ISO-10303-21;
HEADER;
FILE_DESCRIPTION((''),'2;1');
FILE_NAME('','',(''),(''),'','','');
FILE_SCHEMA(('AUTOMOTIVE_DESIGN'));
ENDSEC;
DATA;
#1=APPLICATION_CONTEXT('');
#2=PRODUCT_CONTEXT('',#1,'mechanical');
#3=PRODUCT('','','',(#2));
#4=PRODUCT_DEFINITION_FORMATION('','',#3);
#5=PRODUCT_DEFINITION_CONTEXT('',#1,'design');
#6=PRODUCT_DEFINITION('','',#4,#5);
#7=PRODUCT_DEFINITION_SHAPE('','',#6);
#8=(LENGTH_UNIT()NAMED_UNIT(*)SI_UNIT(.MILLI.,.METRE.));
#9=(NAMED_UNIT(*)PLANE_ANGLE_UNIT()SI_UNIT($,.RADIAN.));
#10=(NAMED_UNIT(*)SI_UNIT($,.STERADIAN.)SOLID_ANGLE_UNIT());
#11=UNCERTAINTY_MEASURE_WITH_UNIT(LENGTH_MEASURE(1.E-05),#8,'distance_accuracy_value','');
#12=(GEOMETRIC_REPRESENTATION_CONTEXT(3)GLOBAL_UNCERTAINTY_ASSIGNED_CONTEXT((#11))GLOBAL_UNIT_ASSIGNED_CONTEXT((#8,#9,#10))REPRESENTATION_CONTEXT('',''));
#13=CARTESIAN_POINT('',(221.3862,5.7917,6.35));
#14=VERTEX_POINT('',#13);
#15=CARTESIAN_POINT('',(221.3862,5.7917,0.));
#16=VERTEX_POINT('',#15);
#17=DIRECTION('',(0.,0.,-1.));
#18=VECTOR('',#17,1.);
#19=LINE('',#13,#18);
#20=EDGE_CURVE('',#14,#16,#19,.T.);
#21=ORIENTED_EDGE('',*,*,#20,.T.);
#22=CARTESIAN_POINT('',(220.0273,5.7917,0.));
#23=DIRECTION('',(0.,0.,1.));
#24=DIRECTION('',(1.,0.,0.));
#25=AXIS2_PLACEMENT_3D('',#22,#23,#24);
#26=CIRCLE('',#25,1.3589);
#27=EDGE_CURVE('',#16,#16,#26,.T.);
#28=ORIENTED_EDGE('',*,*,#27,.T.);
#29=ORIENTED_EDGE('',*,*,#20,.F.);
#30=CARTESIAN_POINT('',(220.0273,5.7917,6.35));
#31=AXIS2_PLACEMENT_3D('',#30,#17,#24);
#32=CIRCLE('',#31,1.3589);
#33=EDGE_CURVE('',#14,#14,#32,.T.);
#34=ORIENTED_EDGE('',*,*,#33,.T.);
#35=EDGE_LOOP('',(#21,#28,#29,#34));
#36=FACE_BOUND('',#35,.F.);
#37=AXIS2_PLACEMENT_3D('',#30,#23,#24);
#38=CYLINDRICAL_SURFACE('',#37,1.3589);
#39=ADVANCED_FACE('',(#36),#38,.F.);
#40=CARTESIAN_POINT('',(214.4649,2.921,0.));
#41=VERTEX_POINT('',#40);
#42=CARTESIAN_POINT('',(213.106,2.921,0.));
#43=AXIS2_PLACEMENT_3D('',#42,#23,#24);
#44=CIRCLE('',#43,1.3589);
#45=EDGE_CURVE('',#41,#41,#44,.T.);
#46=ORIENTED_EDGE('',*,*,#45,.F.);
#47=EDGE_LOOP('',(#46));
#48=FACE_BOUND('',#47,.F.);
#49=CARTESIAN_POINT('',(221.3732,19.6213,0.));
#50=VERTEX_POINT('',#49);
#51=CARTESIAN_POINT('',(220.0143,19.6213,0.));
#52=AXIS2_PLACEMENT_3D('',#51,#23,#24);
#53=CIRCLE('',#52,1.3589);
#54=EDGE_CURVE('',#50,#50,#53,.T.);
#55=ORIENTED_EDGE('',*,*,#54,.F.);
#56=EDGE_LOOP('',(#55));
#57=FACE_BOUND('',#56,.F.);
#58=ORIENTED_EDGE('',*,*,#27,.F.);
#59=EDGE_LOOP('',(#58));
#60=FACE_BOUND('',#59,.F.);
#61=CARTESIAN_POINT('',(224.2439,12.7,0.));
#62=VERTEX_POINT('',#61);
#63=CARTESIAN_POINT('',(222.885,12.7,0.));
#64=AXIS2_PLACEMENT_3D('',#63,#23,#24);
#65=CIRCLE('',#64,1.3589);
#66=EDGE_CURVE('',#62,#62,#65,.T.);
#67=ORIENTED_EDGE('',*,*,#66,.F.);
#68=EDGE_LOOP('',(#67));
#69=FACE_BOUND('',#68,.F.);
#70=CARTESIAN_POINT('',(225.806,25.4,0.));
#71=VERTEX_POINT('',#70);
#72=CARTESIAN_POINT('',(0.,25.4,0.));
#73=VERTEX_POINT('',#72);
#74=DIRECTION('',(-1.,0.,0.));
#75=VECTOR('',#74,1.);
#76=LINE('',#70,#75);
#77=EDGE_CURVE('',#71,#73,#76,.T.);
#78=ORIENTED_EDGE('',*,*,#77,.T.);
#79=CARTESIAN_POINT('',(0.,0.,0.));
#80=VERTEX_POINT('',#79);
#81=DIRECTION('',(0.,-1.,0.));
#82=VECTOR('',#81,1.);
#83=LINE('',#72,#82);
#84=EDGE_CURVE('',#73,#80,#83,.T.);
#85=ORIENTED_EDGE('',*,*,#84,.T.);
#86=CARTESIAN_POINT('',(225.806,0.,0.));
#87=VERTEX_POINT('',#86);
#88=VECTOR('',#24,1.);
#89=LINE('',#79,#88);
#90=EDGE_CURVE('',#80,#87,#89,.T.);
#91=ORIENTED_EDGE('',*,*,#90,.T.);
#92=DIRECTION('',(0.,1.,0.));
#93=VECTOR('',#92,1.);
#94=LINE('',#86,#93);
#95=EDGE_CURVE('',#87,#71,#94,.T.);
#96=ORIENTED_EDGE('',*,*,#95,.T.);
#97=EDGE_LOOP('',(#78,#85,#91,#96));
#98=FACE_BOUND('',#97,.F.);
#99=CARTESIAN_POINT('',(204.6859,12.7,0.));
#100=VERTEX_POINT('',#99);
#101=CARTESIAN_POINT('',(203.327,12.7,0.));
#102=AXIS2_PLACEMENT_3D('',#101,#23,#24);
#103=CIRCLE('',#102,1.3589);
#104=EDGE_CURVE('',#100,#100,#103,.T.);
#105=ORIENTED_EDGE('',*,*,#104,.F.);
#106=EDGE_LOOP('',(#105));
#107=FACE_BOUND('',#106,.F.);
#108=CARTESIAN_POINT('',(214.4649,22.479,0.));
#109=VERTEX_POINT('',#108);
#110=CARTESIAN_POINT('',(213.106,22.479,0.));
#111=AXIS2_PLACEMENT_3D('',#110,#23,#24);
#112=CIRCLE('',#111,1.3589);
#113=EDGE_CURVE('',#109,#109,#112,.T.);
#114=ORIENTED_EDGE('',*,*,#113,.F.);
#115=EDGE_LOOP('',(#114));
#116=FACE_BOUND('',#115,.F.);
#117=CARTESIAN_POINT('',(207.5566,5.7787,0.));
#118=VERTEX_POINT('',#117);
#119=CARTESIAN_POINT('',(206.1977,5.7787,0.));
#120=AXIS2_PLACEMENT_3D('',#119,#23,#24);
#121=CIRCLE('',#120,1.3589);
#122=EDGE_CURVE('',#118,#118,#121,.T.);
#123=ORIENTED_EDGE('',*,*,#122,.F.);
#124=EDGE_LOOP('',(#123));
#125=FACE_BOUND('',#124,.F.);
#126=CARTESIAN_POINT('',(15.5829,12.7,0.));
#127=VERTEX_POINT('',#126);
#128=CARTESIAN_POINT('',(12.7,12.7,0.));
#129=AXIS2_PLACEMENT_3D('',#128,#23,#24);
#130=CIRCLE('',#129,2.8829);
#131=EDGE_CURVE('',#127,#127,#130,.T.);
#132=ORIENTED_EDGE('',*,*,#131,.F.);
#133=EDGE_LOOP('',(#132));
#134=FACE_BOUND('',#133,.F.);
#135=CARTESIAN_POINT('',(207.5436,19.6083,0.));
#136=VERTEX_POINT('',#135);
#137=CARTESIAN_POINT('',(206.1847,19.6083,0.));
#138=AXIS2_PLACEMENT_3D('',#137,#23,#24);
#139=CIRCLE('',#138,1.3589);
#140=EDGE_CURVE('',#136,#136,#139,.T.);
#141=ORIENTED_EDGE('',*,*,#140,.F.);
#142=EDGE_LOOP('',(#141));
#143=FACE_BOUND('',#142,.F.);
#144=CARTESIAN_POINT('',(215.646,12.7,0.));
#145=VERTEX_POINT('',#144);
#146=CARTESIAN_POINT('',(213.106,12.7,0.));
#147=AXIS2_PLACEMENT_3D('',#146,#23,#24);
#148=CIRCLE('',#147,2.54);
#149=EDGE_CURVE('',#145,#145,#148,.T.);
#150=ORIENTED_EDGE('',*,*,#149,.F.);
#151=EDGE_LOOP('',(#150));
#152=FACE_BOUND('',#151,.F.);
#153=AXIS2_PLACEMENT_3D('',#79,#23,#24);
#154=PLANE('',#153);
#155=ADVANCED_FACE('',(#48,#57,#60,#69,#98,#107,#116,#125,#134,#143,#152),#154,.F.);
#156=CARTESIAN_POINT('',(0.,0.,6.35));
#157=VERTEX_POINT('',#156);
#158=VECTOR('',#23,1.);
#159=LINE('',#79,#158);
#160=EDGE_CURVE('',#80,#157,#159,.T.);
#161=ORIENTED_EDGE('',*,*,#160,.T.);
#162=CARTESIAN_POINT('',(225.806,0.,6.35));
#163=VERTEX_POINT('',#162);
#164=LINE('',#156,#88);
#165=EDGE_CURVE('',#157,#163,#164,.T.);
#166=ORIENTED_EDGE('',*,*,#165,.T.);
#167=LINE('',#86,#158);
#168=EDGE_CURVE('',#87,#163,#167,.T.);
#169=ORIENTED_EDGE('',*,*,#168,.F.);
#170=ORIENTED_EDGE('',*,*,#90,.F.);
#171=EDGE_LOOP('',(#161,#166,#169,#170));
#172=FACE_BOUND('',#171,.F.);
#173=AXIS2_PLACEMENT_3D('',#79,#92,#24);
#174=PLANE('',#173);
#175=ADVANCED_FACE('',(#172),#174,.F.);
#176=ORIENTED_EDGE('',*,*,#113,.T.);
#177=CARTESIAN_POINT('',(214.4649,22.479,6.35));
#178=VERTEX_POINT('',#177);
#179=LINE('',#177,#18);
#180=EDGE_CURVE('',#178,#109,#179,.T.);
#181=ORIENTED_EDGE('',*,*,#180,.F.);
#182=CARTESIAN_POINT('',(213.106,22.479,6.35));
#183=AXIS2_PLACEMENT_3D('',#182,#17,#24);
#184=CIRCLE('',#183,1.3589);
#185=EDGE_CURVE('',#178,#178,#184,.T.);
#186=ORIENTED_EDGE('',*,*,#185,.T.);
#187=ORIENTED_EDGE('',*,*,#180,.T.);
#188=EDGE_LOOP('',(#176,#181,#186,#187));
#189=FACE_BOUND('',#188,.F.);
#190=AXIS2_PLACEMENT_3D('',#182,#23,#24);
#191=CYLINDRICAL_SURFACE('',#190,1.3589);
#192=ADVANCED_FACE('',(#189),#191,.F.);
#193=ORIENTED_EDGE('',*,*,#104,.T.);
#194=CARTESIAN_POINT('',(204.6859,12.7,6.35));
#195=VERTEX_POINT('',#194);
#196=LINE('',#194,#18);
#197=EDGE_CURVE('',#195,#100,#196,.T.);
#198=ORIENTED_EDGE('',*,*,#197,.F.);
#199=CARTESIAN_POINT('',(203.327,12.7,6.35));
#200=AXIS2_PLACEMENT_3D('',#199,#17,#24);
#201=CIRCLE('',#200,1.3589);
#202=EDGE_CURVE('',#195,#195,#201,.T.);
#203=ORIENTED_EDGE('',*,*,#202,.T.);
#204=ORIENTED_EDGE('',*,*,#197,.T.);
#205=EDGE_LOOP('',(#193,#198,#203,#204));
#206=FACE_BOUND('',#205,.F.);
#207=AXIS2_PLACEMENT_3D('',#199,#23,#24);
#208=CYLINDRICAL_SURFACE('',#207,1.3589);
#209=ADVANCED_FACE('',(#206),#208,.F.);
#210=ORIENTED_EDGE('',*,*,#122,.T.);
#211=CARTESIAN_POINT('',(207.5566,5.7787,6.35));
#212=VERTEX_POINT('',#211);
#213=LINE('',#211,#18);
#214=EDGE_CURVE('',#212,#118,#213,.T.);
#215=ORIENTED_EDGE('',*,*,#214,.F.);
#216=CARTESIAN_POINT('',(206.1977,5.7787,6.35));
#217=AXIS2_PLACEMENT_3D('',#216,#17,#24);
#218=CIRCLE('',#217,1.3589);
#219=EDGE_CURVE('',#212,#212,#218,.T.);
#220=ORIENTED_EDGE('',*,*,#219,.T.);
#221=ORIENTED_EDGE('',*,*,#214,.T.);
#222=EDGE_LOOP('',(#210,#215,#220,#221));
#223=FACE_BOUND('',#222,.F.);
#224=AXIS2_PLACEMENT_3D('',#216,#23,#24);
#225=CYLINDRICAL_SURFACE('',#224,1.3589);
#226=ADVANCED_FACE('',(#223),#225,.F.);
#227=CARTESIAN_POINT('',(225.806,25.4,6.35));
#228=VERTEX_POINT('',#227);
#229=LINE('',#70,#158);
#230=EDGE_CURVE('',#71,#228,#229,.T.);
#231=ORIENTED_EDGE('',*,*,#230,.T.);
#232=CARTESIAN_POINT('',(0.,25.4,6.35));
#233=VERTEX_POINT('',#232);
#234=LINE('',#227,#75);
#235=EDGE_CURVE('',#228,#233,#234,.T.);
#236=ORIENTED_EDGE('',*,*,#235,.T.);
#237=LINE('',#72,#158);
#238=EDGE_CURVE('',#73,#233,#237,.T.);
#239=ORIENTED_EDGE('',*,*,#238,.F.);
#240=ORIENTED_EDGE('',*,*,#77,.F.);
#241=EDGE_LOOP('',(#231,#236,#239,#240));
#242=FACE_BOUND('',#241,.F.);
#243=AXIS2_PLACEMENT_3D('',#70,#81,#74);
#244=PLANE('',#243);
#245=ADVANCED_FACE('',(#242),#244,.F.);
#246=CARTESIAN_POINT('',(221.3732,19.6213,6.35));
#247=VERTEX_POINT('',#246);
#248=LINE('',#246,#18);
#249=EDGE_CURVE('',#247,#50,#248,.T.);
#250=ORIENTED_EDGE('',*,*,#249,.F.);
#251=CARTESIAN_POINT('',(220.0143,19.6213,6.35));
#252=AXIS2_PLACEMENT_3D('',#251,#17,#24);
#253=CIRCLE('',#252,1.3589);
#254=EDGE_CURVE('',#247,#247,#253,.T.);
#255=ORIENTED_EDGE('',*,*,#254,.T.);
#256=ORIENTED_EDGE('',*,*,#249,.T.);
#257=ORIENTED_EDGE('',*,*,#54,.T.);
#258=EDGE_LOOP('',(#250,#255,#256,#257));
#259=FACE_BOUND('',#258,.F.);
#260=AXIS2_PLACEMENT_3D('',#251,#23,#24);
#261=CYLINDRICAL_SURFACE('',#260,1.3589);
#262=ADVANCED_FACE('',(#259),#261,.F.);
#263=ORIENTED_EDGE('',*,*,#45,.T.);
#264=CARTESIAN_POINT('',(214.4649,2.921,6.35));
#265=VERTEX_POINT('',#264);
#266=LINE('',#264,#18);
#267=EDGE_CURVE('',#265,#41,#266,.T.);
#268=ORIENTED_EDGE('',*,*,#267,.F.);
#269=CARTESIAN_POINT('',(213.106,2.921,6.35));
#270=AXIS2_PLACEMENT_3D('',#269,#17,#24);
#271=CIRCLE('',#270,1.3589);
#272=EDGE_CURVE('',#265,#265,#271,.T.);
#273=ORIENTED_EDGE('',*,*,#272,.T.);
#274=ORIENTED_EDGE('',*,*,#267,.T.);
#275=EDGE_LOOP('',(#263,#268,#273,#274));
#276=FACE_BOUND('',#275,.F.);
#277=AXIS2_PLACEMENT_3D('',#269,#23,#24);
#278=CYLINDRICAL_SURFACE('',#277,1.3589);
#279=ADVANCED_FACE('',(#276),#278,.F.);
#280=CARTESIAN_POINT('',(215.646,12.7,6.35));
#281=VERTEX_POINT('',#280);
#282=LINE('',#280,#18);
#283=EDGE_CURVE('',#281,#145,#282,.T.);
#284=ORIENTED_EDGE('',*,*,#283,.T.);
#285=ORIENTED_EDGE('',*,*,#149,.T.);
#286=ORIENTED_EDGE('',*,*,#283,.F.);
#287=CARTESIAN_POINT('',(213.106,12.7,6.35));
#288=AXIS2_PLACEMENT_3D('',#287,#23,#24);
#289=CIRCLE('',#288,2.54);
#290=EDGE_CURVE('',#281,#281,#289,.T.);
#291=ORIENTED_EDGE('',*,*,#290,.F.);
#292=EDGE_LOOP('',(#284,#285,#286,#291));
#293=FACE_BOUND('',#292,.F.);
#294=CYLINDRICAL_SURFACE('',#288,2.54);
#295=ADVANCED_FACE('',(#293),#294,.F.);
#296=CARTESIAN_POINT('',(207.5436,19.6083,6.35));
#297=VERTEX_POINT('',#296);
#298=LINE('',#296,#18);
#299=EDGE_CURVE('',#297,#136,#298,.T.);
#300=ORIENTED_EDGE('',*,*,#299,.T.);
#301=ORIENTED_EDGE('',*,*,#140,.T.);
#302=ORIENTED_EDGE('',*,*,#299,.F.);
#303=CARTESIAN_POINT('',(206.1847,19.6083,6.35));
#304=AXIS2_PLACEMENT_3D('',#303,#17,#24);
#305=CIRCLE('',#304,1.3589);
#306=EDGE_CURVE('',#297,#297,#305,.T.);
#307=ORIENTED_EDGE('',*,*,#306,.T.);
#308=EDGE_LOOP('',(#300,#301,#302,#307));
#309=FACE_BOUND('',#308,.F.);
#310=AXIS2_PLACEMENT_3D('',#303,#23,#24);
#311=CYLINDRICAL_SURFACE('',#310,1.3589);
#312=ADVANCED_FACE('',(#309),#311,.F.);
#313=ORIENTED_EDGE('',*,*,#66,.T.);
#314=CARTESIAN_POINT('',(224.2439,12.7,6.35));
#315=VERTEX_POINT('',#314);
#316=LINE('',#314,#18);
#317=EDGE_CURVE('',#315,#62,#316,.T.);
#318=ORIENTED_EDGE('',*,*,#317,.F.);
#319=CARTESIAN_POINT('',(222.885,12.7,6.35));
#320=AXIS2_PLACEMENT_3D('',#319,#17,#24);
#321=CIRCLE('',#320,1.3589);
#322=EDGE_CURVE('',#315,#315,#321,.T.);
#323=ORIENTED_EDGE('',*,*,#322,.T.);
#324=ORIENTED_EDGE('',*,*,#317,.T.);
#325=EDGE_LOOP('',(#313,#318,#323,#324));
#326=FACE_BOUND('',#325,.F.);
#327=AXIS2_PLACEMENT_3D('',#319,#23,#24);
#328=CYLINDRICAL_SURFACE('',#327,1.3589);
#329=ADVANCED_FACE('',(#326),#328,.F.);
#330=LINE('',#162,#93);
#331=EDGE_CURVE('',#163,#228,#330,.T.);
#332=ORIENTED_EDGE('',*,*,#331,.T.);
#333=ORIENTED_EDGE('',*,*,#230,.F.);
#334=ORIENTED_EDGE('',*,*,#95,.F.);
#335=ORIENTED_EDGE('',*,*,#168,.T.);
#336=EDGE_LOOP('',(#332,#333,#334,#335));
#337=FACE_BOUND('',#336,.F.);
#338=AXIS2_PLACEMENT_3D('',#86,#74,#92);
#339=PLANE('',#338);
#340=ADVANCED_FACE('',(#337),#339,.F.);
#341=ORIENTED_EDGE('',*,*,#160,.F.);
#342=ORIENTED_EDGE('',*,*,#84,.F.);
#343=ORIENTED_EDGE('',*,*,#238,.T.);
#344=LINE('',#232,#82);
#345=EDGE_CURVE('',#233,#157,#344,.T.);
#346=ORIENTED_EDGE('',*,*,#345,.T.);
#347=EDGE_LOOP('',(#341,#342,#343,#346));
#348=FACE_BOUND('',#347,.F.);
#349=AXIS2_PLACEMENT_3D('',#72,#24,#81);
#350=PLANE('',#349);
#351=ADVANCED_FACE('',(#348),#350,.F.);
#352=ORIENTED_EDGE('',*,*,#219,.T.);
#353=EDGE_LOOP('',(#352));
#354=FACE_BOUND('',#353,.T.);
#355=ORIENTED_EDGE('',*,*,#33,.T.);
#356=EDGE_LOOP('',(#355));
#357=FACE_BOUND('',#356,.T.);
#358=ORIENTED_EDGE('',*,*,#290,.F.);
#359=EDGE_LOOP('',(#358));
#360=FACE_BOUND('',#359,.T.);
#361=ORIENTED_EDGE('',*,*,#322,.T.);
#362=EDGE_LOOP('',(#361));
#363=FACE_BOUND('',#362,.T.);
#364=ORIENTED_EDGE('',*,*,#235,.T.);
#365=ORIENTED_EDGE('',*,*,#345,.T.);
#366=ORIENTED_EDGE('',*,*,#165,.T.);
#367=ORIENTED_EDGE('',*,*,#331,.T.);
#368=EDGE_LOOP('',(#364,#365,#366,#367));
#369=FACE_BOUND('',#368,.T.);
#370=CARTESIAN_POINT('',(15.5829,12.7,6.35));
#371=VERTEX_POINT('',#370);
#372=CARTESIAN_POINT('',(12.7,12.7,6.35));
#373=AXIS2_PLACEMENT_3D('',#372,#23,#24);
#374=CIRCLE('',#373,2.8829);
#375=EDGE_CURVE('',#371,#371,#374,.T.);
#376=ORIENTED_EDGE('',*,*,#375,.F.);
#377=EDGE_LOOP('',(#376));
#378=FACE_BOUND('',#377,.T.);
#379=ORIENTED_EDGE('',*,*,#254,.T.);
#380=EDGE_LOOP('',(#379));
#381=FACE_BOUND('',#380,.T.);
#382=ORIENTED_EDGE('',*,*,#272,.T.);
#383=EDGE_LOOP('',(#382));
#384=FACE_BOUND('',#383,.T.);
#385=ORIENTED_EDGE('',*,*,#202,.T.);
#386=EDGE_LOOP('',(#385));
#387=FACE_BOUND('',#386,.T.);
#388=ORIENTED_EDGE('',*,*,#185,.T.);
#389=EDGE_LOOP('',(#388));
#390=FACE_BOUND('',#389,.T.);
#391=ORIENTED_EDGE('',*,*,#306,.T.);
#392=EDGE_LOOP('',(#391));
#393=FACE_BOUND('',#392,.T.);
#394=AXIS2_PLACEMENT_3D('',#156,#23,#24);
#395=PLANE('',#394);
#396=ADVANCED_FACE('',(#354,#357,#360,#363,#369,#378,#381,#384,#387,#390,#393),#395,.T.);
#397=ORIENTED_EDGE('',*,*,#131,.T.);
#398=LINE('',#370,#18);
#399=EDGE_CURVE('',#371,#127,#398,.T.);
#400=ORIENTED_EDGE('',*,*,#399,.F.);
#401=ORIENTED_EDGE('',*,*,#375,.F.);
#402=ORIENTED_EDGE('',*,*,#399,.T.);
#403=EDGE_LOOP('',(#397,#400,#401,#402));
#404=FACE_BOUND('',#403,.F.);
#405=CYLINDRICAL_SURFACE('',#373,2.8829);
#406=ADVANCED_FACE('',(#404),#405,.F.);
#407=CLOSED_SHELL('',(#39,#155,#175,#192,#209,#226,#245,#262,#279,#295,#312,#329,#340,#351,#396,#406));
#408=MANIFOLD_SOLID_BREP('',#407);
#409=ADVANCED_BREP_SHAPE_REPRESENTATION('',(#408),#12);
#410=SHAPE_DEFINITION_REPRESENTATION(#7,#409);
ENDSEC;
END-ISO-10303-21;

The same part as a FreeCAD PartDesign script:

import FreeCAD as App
import Part
import Sketcher

V = App.Vector
Q = App.Units.Quantity

doc = App.newDocument("Part")
body = doc.addObject("PartDesign::Body", "Body")

# Sketch on XY plane
sketch1 = doc.addObject("Sketcher::SketchObject", "Sketch")
body.addObject(sketch1)
sketch1.AttachmentSupport = (doc.XY_Plane, [""])
sketch1.MapMode = "FlatFace"
sketch1.addGeometry([
    Part.LineSegment(V(0, 25.4, 0), V(0, 0, 0)),
    Part.LineSegment(V(0, 0, 0), V(225.806, 0, 0)),
    Part.LineSegment(V(225.806, 0, 0), V(225.806, 25.4, 0)),
    Part.LineSegment(V(225.806, 25.4, 0), V(0, 25.4, 0)),
], False)
sketch1.addConstraint([
    Sketcher.Constraint("Coincident", 0, 2, 1, 1),
    Sketcher.Constraint("Coincident", 1, 2, 2, 1),
    Sketcher.Constraint("Coincident", 2, 2, 3, 1),
    Sketcher.Constraint("Coincident", 3, 2, 0, 1),
    Sketcher.Constraint("Vertical", 0),
    Sketcher.Constraint("Horizontal", 1),
    Sketcher.Constraint("Vertical", 2),
    Sketcher.Constraint("Horizontal", 3),
    Sketcher.Constraint("Coincident", 0, 2, -1, 1),
    Sketcher.Constraint("DistanceY", 0, 2, 0, 1, Q("1 in")),
    Sketcher.Constraint("DistanceX", 1, 1, 1, 2, Q("8.89 in")),
])
pad1 = doc.addObject("PartDesign::Pad", "Pad")
body.addObject(pad1)
pad1.Profile = sketch1
pad1.Length = Q("0.25 in")

# Sketch on XY plane
sketch2 = doc.addObject("Sketcher::SketchObject", "Sketch001")
body.addObject(sketch2)
sketch2.AttachmentSupport = (doc.XY_Plane, [""])
sketch2.MapMode = "FlatFace"
sketch2.AttachmentOffset = App.Placement(V(0, 0, 0.25 * 25.4), App.Rotation())
sketch2.addGeometry(Part.Circle(V(12.7, 12.7, 0), V(0, 0, 1), 2.8829), False)
sketch2.addConstraint([
    Sketcher.Constraint("Diameter", 0, Q("0.227 in")),
    Sketcher.Constraint("DistanceX", -1, 1, 0, 3, Q("0.5 in")),
    Sketcher.Constraint("DistanceY", -1, 1, 0, 3, Q("0.5 in")),
])
pocket1 = doc.addObject("PartDesign::Pocket", "Pocket")
body.addObject(pocket1)
pocket1.Profile = sketch2
pocket1.Type = "ThroughAll"

# Sketch on XY plane
sketch3 = doc.addObject("Sketcher::SketchObject", "Sketch002")
body.addObject(sketch3)
sketch3.AttachmentSupport = (doc.XY_Plane, [""])
sketch3.MapMode = "FlatFace"
sketch3.AttachmentOffset = App.Placement(V(0, 0, 0.25 * 25.4), App.Rotation())
sketch3.addGeometry(Part.Circle(V(213.106, 12.7, 0), V(0, 0, 1), 2.54), False)
sketch3.addConstraint([
    Sketcher.Constraint("Diameter", 0, Q("0.2 in")),
    Sketcher.Constraint("DistanceY", -1, 1, 0, 3, Q("0.5 in")),
    Sketcher.Constraint("DistanceX", -1, 1, 0, 3, Q("8.39 in")),
])
pocket2 = doc.addObject("PartDesign::Pocket", "Pocket001")
body.addObject(pocket2)
pocket2.Profile = sketch3
pocket2.Type = "ThroughAll"

# Sketch on XY plane
sketch4 = doc.addObject("Sketcher::SketchObject", "Sketch003")
body.addObject(sketch4)
sketch4.AttachmentSupport = (doc.XY_Plane, [""])
sketch4.MapMode = "FlatFace"
sketch4.AttachmentOffset = App.Placement(V(0, 0, 0.25 * 25.4), App.Rotation())
sketch4.addGeometry([
    Part.Circle(V(222.885, 12.7, 0), V(0, 0, 1), 1.3589),  # 0
    Part.Circle(V(220.0143, 19.6213, 0), V(0, 0, 1), 1.3589),  # 1
    Part.Circle(V(220.0273, 5.7917, 0), V(0, 0, 1), 1.3589),  # 2
    Part.Circle(V(213.106, 2.921, 0), V(0, 0, 1), 1.3589),  # 3
    Part.Circle(V(213.106, 22.479, 0), V(0, 0, 1), 1.3589),  # 4
    Part.Circle(V(206.1977, 5.7787, 0), V(0, 0, 1), 1.3589),  # 5
    Part.Circle(V(206.1847, 19.6083, 0), V(0, 0, 1), 1.3589),  # 6
    Part.Circle(V(203.327, 12.7, 0), V(0, 0, 1), 1.3589),  # 7
], False)
sketch4.addConstraint([
    Sketcher.Constraint("Equal", 0, 1),
    Sketcher.Constraint("Equal", 1, 2),
    Sketcher.Constraint("Equal", 2, 3),
    Sketcher.Constraint("Equal", 3, 4),
    Sketcher.Constraint("Equal", 4, 5),
    Sketcher.Constraint("Equal", 5, 6),
    Sketcher.Constraint("Equal", 6, 7),
    Sketcher.Constraint("Horizontal", 0, 3, 7, 3),
    Sketcher.Constraint("Vertical", 3, 3, 4, 3),
    Sketcher.Constraint("Diameter", 0, Q("0.107 in")),
    Sketcher.Constraint("DistanceY", 3, 3, 4, 3, Q("0.77 in")),
    Sketcher.Constraint("DistanceY", -1, 1, 0, 3, Q("0.5 in")),
    Sketcher.Constraint("DistanceX", -1, 1, 3, 3, Q("8.39 in")),
    Sketcher.Constraint("DistanceX", -1, 1, 0, 3, Q("8.775 in")),
    Sketcher.Constraint("DistanceY", -1, 1, 3, 3, Q("0.115 in")),
    Sketcher.Constraint("DistanceX", -1, 1, 7, 3, Q("8.005 in")),
    Sketcher.Constraint("DistanceY", -1, 1, 1, 3, Q("0.7725 in")),
    Sketcher.Constraint("DistanceX", -1, 1, 2, 3, Q("8.6625 in")),
    Sketcher.Constraint("DistanceY", -1, 1, 5, 3, Q("0.2275 in")),
    Sketcher.Constraint("DistanceX", -1, 1, 6, 3, Q("8.1175 in")),
    Sketcher.Constraint("DistanceX", 1, 3, 2, 3, Q("0.0005 in")),
    Sketcher.Constraint("DistanceY", 5, 3, 2, 3, Q("0.0005 in")),
    Sketcher.Constraint("DistanceY", 6, 3, 1, 3, Q("0.0005 in")),
    Sketcher.Constraint("DistanceX", 6, 3, 5, 3, Q("0.0005 in")),
])
pocket3 = doc.addObject("PartDesign::Pocket", "Pocket002")
body.addObject(pocket3)
pocket3.Profile = sketch4
pocket3.Type = "ThroughAll"

doc.recompute()
